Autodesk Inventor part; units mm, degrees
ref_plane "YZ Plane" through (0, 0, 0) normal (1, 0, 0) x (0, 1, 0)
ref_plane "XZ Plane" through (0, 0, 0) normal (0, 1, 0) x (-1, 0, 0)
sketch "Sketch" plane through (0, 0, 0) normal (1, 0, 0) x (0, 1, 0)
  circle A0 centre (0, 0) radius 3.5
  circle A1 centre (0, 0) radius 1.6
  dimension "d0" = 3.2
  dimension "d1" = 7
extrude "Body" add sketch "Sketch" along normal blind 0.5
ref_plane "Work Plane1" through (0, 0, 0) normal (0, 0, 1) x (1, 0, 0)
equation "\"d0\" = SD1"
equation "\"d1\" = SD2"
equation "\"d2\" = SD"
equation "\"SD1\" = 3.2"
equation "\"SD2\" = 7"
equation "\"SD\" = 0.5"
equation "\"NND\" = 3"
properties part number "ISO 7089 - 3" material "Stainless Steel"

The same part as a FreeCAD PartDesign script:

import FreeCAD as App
import Part
import Sketcher

doc = App.newDocument("Part")
body = doc.addObject("PartDesign::Body", "Body")

sketch1 = doc.addObject("Sketcher::SketchObject", "Sketch")
body.addObject(sketch1)
sketch1.AttachmentSupport = (doc.YZ_Plane, [""])
sketch1.MapMode = "FlatFace"
sketch1.addGeometry([
    Part.Circle(App.Vector(0, 0, 0), App.Vector(0, 0, 1), 3.5),
    Part.Circle(App.Vector(0, 0, 0), App.Vector(0, 0, 1), 1.6),
], False)
sketch1.addConstraint([
    Sketcher.Constraint("Coincident", 0, 3, -1, 1),
    Sketcher.Constraint("Coincident", 1, 3, -1, 1),
    Sketcher.Constraint("Diameter", 0, 7.0),
    Sketcher.Constraint("Diameter", 1, 3.2),
])
pad1 = doc.addObject("PartDesign::Pad", "Pad")
body.addObject(pad1)
pad1.Profile = sketch1
pad1.Length = 0.5

doc.recompute()
